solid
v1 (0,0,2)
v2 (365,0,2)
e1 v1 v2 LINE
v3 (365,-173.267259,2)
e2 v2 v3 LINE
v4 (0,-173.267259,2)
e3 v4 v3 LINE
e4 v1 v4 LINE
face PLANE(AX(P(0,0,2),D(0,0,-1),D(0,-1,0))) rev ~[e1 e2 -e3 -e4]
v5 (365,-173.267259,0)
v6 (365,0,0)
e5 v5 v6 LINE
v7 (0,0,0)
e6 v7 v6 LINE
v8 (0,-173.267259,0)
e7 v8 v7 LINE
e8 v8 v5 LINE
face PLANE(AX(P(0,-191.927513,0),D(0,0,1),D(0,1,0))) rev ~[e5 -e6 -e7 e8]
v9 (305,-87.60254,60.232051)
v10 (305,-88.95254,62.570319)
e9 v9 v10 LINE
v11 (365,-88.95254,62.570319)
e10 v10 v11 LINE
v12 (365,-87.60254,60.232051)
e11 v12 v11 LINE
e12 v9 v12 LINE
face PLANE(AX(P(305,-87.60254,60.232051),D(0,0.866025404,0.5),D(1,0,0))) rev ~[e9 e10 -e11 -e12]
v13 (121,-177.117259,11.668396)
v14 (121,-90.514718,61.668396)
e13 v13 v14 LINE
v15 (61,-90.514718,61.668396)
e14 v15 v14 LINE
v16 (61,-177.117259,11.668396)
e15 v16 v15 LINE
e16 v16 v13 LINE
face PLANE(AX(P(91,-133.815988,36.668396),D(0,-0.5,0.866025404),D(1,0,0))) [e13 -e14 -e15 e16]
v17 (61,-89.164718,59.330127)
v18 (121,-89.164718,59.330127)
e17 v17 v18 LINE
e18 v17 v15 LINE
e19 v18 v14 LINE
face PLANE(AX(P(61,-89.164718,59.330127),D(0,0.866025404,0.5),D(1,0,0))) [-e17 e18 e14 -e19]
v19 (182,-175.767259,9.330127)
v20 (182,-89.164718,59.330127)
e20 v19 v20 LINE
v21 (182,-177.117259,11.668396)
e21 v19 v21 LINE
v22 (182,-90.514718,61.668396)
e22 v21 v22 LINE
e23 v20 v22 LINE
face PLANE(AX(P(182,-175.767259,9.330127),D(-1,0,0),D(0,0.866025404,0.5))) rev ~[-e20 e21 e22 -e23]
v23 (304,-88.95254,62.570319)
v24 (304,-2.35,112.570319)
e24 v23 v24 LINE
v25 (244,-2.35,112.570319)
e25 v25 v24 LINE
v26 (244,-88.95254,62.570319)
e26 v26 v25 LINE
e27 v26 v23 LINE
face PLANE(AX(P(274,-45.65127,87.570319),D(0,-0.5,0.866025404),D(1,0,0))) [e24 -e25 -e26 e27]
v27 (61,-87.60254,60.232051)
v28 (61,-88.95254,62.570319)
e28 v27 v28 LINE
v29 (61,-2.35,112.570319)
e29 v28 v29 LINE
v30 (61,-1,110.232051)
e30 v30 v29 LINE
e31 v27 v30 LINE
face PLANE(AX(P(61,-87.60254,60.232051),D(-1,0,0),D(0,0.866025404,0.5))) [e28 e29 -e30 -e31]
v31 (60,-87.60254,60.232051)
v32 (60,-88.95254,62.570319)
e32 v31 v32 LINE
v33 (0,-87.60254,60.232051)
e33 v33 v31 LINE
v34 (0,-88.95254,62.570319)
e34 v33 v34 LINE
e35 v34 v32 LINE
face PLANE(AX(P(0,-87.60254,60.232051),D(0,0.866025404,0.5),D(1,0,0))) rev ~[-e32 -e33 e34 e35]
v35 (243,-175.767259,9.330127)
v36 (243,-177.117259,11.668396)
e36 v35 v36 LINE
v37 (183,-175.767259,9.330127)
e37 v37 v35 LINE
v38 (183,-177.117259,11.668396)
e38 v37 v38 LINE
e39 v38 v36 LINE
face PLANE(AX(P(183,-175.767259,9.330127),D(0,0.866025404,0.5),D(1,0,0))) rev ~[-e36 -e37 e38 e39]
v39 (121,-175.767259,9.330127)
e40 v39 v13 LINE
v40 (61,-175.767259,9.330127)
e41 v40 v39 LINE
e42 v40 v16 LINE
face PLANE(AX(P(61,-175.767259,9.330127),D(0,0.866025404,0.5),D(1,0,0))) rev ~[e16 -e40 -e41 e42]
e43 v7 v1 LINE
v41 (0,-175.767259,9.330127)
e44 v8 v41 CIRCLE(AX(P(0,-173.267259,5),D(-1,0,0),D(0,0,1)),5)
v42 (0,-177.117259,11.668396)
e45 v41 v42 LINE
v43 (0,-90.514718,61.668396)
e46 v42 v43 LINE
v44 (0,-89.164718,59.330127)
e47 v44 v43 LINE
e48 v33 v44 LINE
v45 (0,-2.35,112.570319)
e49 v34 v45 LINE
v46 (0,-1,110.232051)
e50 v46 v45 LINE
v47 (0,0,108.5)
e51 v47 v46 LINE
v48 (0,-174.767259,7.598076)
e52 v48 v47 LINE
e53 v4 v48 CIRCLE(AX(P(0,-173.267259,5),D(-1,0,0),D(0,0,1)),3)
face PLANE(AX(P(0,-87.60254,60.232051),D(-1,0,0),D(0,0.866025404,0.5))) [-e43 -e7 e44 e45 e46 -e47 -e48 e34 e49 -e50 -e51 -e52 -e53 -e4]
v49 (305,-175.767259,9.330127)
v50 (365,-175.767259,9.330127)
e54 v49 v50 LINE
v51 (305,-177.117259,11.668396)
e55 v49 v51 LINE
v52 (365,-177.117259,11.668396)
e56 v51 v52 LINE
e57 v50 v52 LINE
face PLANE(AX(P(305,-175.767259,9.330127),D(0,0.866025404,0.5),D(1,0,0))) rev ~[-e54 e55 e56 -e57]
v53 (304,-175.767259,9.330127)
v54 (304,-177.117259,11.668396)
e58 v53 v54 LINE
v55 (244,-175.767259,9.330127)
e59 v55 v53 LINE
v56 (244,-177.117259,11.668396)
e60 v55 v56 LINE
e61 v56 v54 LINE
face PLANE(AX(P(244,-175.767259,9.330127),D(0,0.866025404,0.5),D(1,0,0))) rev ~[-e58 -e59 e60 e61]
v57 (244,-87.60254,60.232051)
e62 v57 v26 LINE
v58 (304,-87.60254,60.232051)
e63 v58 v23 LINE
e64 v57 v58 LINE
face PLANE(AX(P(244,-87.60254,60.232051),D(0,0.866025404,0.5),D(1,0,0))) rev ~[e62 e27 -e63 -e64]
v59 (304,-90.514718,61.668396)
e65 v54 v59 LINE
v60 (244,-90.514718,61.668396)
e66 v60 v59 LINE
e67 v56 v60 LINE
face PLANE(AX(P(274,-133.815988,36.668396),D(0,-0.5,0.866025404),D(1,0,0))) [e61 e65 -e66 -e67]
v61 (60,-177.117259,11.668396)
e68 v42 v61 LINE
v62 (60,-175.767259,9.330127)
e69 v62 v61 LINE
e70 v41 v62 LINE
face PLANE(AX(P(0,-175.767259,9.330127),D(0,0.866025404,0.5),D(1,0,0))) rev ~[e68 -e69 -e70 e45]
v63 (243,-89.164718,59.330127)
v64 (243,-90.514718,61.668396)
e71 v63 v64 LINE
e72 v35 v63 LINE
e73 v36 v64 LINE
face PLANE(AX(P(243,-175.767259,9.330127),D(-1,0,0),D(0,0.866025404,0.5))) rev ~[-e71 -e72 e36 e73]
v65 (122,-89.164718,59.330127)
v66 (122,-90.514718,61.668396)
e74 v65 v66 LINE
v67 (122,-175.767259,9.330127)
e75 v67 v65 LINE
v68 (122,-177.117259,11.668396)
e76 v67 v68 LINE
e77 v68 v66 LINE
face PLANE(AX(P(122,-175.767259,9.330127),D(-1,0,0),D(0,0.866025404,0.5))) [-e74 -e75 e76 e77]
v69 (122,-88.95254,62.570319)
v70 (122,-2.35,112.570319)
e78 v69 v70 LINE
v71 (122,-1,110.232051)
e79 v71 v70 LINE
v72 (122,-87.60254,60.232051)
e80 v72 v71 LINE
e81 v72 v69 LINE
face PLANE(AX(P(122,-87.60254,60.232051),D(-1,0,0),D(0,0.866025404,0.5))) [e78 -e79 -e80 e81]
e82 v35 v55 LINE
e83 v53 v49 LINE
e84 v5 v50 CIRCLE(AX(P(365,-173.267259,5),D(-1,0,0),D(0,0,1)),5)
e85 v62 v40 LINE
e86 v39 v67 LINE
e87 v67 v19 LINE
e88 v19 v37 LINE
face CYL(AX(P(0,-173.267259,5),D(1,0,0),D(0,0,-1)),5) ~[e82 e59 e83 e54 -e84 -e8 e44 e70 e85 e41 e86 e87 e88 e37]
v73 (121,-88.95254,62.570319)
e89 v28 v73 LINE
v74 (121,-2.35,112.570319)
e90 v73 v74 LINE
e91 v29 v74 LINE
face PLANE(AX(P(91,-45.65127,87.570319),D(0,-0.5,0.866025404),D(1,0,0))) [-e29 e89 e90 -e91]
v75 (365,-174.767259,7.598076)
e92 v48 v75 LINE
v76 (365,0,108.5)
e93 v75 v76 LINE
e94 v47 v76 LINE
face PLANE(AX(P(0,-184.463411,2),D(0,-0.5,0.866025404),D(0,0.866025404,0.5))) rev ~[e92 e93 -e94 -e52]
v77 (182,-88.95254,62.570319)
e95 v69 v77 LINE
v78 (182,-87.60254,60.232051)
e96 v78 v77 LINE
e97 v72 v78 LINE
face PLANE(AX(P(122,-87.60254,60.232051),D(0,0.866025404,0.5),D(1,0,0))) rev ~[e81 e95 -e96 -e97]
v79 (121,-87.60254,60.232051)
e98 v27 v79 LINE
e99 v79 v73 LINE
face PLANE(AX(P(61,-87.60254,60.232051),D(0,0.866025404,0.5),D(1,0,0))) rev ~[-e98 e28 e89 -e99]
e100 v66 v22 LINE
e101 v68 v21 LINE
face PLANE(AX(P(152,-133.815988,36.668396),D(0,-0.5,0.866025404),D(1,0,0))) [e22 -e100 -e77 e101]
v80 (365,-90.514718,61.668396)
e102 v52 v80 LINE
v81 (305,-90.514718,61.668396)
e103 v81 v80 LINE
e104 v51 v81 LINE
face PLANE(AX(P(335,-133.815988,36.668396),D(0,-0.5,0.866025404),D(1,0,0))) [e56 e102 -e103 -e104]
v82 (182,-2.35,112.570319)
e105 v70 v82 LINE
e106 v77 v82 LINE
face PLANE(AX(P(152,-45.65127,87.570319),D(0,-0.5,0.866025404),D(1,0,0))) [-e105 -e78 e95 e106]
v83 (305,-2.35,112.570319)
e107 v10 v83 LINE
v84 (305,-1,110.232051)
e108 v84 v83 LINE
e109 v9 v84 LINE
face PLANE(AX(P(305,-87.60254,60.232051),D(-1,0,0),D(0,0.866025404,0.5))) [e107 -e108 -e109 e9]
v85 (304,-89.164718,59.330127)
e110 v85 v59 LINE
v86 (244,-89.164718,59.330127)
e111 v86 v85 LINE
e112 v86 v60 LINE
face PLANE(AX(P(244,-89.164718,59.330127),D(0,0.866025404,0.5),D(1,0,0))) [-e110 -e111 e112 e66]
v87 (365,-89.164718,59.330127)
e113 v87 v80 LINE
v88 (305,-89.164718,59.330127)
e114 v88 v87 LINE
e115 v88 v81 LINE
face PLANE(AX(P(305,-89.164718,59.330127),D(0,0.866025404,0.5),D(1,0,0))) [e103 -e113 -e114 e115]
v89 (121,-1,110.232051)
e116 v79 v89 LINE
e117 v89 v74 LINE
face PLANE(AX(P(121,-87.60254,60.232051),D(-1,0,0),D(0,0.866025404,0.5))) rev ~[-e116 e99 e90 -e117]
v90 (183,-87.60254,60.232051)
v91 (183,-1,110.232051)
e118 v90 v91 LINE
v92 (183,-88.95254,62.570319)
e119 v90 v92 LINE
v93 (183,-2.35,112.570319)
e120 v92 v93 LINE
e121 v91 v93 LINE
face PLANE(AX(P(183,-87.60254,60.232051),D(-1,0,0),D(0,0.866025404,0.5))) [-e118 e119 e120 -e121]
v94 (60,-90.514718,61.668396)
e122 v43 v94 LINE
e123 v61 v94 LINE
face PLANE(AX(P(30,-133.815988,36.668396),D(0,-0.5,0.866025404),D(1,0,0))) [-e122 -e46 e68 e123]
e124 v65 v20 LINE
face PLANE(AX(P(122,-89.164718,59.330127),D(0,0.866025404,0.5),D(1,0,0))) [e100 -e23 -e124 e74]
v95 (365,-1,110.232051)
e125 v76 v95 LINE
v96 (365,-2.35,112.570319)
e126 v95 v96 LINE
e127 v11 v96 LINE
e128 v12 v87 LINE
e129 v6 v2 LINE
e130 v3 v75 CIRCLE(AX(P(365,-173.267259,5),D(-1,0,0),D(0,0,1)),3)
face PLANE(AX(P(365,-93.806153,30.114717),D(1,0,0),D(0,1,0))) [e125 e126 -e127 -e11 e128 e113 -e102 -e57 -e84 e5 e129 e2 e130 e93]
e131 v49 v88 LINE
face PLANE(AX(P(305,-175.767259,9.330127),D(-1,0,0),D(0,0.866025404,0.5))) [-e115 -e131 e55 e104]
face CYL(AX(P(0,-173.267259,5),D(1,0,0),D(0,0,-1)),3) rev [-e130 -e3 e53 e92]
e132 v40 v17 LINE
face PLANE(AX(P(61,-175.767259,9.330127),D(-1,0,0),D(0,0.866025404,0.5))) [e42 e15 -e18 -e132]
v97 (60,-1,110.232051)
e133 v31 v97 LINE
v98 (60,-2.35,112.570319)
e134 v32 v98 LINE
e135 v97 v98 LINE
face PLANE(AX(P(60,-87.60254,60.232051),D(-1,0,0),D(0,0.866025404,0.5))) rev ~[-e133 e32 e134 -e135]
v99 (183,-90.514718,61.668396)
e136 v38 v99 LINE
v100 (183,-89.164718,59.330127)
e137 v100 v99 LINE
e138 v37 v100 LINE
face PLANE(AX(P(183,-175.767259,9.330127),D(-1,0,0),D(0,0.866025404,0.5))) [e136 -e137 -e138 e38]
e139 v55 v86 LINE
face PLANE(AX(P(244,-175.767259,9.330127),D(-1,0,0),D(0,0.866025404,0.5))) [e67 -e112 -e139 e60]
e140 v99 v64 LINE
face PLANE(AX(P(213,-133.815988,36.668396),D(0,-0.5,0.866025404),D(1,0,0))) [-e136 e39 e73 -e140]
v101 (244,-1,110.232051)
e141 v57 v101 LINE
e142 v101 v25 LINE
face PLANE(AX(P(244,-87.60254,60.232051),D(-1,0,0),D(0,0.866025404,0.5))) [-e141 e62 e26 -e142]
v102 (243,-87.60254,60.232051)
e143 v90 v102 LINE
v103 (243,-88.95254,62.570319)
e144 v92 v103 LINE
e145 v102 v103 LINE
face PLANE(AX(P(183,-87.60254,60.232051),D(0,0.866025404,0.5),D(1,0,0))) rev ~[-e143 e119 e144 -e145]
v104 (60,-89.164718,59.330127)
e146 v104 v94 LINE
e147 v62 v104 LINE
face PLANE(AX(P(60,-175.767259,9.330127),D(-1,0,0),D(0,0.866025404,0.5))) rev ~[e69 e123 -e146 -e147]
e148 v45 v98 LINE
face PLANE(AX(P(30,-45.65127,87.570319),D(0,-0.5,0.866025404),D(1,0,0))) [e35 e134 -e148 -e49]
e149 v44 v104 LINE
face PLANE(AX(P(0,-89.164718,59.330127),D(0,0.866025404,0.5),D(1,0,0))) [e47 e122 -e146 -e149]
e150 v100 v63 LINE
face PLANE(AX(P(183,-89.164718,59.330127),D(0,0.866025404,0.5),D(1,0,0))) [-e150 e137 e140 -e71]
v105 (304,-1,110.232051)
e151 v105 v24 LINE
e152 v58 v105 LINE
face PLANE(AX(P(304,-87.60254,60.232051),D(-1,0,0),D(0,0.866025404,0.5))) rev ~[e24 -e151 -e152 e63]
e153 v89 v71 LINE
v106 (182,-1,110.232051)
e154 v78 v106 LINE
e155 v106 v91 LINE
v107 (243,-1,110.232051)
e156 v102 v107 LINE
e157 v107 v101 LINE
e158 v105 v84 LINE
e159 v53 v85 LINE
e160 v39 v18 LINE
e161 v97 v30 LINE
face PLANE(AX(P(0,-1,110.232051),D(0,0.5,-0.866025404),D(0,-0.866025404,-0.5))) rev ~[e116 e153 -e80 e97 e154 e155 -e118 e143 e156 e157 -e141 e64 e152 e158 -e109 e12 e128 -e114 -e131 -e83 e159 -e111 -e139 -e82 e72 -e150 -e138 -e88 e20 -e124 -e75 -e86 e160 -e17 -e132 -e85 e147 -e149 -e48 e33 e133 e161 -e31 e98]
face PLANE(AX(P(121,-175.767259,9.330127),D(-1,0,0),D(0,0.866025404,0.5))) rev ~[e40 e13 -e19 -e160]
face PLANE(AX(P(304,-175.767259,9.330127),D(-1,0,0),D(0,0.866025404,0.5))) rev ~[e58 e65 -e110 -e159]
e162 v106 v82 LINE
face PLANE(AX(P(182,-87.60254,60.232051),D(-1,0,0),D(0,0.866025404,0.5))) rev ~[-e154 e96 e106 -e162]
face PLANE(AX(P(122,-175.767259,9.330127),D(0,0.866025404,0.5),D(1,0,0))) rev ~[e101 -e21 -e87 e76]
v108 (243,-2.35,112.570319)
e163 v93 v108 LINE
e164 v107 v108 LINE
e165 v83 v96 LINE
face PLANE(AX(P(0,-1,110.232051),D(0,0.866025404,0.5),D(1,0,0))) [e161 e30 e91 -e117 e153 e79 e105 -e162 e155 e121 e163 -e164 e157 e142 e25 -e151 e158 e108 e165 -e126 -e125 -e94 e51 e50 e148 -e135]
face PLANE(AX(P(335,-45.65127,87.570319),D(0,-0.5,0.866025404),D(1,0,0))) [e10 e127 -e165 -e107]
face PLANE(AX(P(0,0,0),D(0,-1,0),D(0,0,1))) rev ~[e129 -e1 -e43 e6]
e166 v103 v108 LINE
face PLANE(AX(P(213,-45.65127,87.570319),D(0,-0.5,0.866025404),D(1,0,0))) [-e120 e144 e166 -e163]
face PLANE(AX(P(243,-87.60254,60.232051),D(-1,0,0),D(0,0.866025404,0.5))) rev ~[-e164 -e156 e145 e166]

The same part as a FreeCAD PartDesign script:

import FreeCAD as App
import Part
import Sketcher

V = App.Vector
Q = App.Units.Quantity


def edges_at(feature, points):
    """Names of the edges that pass closest to the given points."""
    edges = feature.Shape.Edges
    near = lambda p: min(range(len(edges)), key=lambda i: edges[i].distToShape(Part.Vertex(*p))[0])
    return sorted({f"Edge{near(p) + 1}" for p in points})


def add_polygon(sketch, points):
    """Adds a closed chain of lines whose ends are joined by coincident constraints."""
    first, n = sketch.GeometryCount, len(points)
    for a, b in zip(points, points[1:] + points[:1]):
        sketch.addGeometry(Part.LineSegment(App.Vector(*a, 0), App.Vector(*b, 0)), False)
    for i in range(n):
        sketch.addConstraint(Sketcher.Constraint("Coincident", first + i, 2, first + (i + 1) % n, 1))

doc = App.newDocument("Part")
body = doc.addObject("PartDesign::Body", "Body")

# Sketch on YZ plane
sketch1 = doc.addObject("Sketcher::SketchObject", "Sketch")
body.addObject(sketch1)
sketch1.AttachmentSupport = (doc.YZ_Plane, [""])
sketch1.MapMode = "FlatFace"
add_polygon(sketch1, [(0, 0), (0, 2), (-184.5, 2), (0, 108.5), (-1, 110.2), (-191.9, 0)])  # lines 0-5
sketch1.addConstraint(Sketcher.Constraint("Vertical", 0))
sketch1.addConstraint(Sketcher.Constraint("Horizontal", 1))
sketch1.addConstraint(Sketcher.Constraint("Horizontal", 5))
sketch1.addConstraint(Sketcher.Constraint("Coincident", 5, 2, -1, 1))
sketch1.addConstraint(Sketcher.Constraint("PointOnObject", 2, 2, -2))
sketch1.addConstraint(Sketcher.Constraint("Perpendicular", 2, 3))
sketch1.addConstraint(Sketcher.Constraint("Perpendicular", 3, 4))
sketch1.addConstraint(Sketcher.Constraint("DistanceY", 0, 1, 0, 2, 2.0))
sketch1.addConstraint(Sketcher.Constraint("Angle", 2, Q("30 deg")))
sketch1.addConstraint(Sketcher.Constraint("Distance", 2, 213.0))
sketch1.addConstraint(Sketcher.Constraint("Distance", 3, 2.0))
pad1 = doc.addObject("PartDesign::Pad", "Pad")
body.addObject(pad1)
pad1.Profile = sketch1
pad1.Length = 365
doc.recompute()

fillet = doc.addObject("PartDesign::Fillet", "Fillet")
body.addObject(fillet)
fillet.Base = (pad1, edges_at(pad1, [(182.5, -184.463, 2)]))
fillet.Radius = 3
doc.recompute()

fillet2 = doc.addObject("PartDesign::Fillet", "Fillet001")
body.addObject(fillet2)
fillet2.Base = (fillet, edges_at(fillet, [(182.5, -191.928, 0)]))
fillet2.Radius = 5

# Sketch on an angled plane
sketch2 = doc.addObject("Sketcher::SketchObject", "Sketch001")
body.addObject(sketch2)
sketch2.Placement = App.Placement(V(0, -47.981878, 83.107051), App.Rotation(V(1, 0, 0), V(0, 0.866025404, 0.5), V(0, -0.5, 0.866025404), "ZXY"))
add_polygon(sketch2, [(0, 54), (0, -46), (60, -46), (60, 54)])  # lines 0-3
add_polygon(sketch2, [(61, 54), (61, -46), (121, -46), (121, 54)])  # lines 4-7
add_polygon(sketch2, [(122, 54), (122, -46), (182, -46), (182, 54)])  # lines 8-11
add_polygon(sketch2, [(183, 54), (183, -46), (243, -46), (243, 54)])  # lines 12-15
add_polygon(sketch2, [(244, 54), (244, -46), (304, -46), (304, 54)])  # lines 16-19
add_polygon(sketch2, [(305, 54), (305, -46), (365, -46), (365, 54)])  # lines 20-23
add_polygon(sketch2, [(0, -48), (0, -148), (60, -148), (60, -48)])  # lines 24-27
add_polygon(sketch2, [(61, -48), (61, -148), (121, -148), (121, -48)])  # lines 28-31
add_polygon(sketch2, [(122, -48), (122, -148), (182, -148), (182, -48)])  # lines 32-35
add_polygon(sketch2, [(183, -48), (183, -148), (243, -148), (243, -48)])  # lines 36-39
add_polygon(sketch2, [(244, -48), (244, -148), (304, -148), (304, -48)])  # lines 40-43
add_polygon(sketch2, [(305, -48), (305, -148), (365, -148), (365, -48)])  # lines 44-47
sketch2.addConstraint(Sketcher.Constraint("Vertical", 0))
sketch2.addConstraint(Sketcher.Constraint("Horizontal", 1))
sketch2.addConstraint(Sketcher.Constraint("Vertical", 2))
sketch2.addConstraint(Sketcher.Constraint("Horizontal", 3))
sketch2.addConstraint(Sketcher.Constraint("Vertical", 4))
sketch2.addConstraint(Sketcher.Constraint("Horizontal", 5))
sketch2.addConstraint(Sketcher.Constraint("Vertical", 6))
sketch2.addConstraint(Sketcher.Constraint("Horizontal", 7))
sketch2.addConstraint(Sketcher.Constraint("Vertical", 8))
sketch2.addConstraint(Sketcher.Constraint("Horizontal", 9))
sketch2.addConstraint(Sketcher.Constraint("Vertical", 10))
sketch2.addConstraint(Sketcher.Constraint("Horizontal", 11))
sketch2.addConstraint(Sketcher.Constraint("Vertical", 12))
sketch2.addConstraint(Sketcher.Constraint("Horizontal", 13))
sketch2.addConstraint(Sketcher.Constraint("Vertical", 14))
sketch2.addConstraint(Sketcher.Constraint("Horizontal", 15))
sketch2.addConstraint(Sketcher.Constraint("Vertical", 16))
sketch2.addConstraint(Sketcher.Constraint("Horizontal", 17))
sketch2.addConstraint(Sketcher.Constraint("Vertical", 18))
sketch2.addConstraint(Sketcher.Constraint("Horizontal", 19))
sketch2.addConstraint(Sketcher.Constraint("Vertical", 20))
sketch2.addConstraint(Sketcher.Constraint("Horizontal", 21))
sketch2.addConstraint(Sketcher.Constraint("Vertical", 22))
sketch2.addConstraint(Sketcher.Constraint("Horizontal", 23))
sketch2.addConstraint(Sketcher.Constraint("Vertical", 24))
sketch2.addConstraint(Sketcher.Constraint("Horizontal", 25))
sketch2.addConstraint(Sketcher.Constraint("Vertical", 26))
sketch2.addConstraint(Sketcher.Constraint("Horizontal", 27))
sketch2.addConstraint(Sketcher.Constraint("Vertical", 28))
sketch2.addConstraint(Sketcher.Constraint("Horizontal", 29))
sketch2.addConstraint(Sketcher.Constraint("Vertical", 30))
sketch2.addConstraint(Sketcher.Constraint("Horizontal", 31))
sketch2.addConstraint(Sketcher.Constraint("Vertical", 32))
sketch2.addConstraint(Sketcher.Constraint("Horizontal", 33))
sketch2.addConstraint(Sketcher.Constraint("Vertical", 34))
sketch2.addConstraint(Sketcher.Constraint("Horizontal", 35))
sketch2.addConstraint(Sketcher.Constraint("Vertical", 36))
sketch2.addConstraint(Sketcher.Constraint("Horizontal", 37))
sketch2.addConstraint(Sketcher.Constraint("Vertical", 38))
sketch2.addConstraint(Sketcher.Constraint("Horizontal", 39))
sketch2.addConstraint(Sketcher.Constraint("Vertical", 40))
sketch2.addConstraint(Sketcher.Constraint("Horizontal", 41))
sketch2.addConstraint(Sketcher.Constraint("Vertical", 42))
sketch2.addConstraint(Sketcher.Constraint("Horizontal", 43))
sketch2.addConstraint(Sketcher.Constraint("Vertical", 44))
sketch2.addConstraint(Sketcher.Constraint("Horizontal", 45))
sketch2.addConstraint(Sketcher.Constraint("Vertical", 46))
sketch2.addConstraint(Sketcher.Constraint("Horizontal", 47))
sketch2.addConstraint(Sketcher.Constraint("PointOnObject", 0, 2, -2))
sketch2.addConstraint(Sketcher.Constraint("PointOnObject", 24, 2, -2))
sketch2.addConstraint(Sketcher.Constraint("Horizontal", 1, 2, 4, 2))
sketch2.addConstraint(Sketcher.Constraint("Horizontal", 3, 2, 6, 2))
sketch2.addConstraint(Sketcher.Constraint("Horizontal", 5, 2, 8, 2))
sketch2.addConstraint(Sketcher.Constraint("Horizontal", 7, 2, 10, 2))
sketch2.addConstraint(Sketcher.Constraint("Horizontal", 9, 2, 12, 2))
sketch2.addConstraint(Sketcher.Constraint("Horizontal", 11, 2, 14, 2))
sketch2.addConstraint(Sketcher.Constraint("Horizontal", 13, 2, 16, 2))
sketch2.addConstraint(Sketcher.Constraint("Horizontal", 15, 2, 18, 2))
sketch2.addConstraint(Sketcher.Constraint("Horizontal", 17, 2, 20, 2))
sketch2.addConstraint(Sketcher.Constraint("Horizontal", 19, 2, 22, 2))
sketch2.addConstraint(Sketcher.Constraint("Horizontal", 25, 2, 28, 2))
sketch2.addConstraint(Sketcher.Constraint("Horizontal", 27, 2, 30, 2))
sketch2.addConstraint(Sketcher.Constraint("Horizontal", 29, 2, 32, 2))
sketch2.addConstraint(Sketcher.Constraint("Horizontal", 31, 2, 34, 2))
sketch2.addConstraint(Sketcher.Constraint("Horizontal", 33, 2, 36, 2))
sketch2.addConstraint(Sketcher.Constraint("Horizontal", 35, 2, 38, 2))
sketch2.addConstraint(Sketcher.Constraint("Horizontal", 37, 2, 40, 2))
sketch2.addConstraint(Sketcher.Constraint("Horizontal", 39, 2, 42, 2))
sketch2.addConstraint(Sketcher.Constraint("Horizontal", 41, 2, 44, 2))
sketch2.addConstraint(Sketcher.Constraint("Horizontal", 43, 2, 46, 2))
sketch2.addConstraint(Sketcher.Constraint("Vertical", 2, 2, 25, 2))
sketch2.addConstraint(Sketcher.Constraint("Vertical", 7, 2, 28, 2))
sketch2.addConstraint(Sketcher.Constraint("Vertical", 6, 2, 29, 2))
sketch2.addConstraint(Sketcher.Constraint("Vertical", 11, 2, 32, 2))
sketch2.addConstraint(Sketcher.Constraint("Vertical", 10, 2, 33, 2))
sketch2.addConstraint(Sketcher.Constraint("Vertical", 15, 2, 36, 2))
sketch2.addConstraint(Sketcher.Constraint("Vertical", 14, 2, 37, 2))
sketch2.addConstraint(Sketcher.Constraint("Vertical", 19, 2, 40, 2))
sketch2.addConstraint(Sketcher.Constraint("Vertical", 18, 2, 41, 2))
sketch2.addConstraint(Sketcher.Constraint("Vertical", 23, 2, 44, 2))
sketch2.addConstraint(Sketcher.Constraint("Vertical", 22, 2, 45, 2))
sketch2.addConstraint(Sketcher.Constraint("Equal", 3, 5))
sketch2.addConstraint(Sketcher.Constraint("Equal", 7, 9))
sketch2.addConstraint(Sketcher.Constraint("Equal", 11, 13))
sketch2.addConstraint(Sketcher.Constraint("Equal", 15, 17))
sketch2.addConstraint(Sketcher.Constraint("Equal", 19, 21))
sketch2.addConstraint(Sketcher.Constraint("Equal", 22, 24))
sketch2.addConstraint(Sketcher.Constraint("DistanceX", 1, 1, 1, 2, 60.0))
sketch2.addConstraint(Sketcher.Constraint("DistanceY", 0, 2, 0, 1, 100.0))
sketch2.addConstraint(Sketcher.Constraint("DistanceX", -1, 1, 4, 2, 61.0))
sketch2.addConstraint(Sketcher.Constraint("DistanceX", -1, 1, 8, 2, 122.0))
sketch2.addConstraint(Sketcher.Constraint("DistanceX", -1, 1, 12, 2, 183.0))
sketch2.addConstraint(Sketcher.Constraint("DistanceX", -1, 1, 16, 2, 244.0))
sketch2.addConstraint(Sketcher.Constraint("DistanceX", -1, 1, 20, 2, 305.0))
sketch2.addConstraint(Sketcher.Constraint("DistanceY", 0, 2, -1, 1, 45.75))
sketch2.addConstraint(Sketcher.Constraint("DistanceY", 24, 2, -1, 1, 147.553848))
pad2 = doc.addObject("PartDesign::Pad", "Pad001")
body.addObject(pad2)
pad2.Profile = sketch2
pad2.Length = 2.7

doc.recompute()
